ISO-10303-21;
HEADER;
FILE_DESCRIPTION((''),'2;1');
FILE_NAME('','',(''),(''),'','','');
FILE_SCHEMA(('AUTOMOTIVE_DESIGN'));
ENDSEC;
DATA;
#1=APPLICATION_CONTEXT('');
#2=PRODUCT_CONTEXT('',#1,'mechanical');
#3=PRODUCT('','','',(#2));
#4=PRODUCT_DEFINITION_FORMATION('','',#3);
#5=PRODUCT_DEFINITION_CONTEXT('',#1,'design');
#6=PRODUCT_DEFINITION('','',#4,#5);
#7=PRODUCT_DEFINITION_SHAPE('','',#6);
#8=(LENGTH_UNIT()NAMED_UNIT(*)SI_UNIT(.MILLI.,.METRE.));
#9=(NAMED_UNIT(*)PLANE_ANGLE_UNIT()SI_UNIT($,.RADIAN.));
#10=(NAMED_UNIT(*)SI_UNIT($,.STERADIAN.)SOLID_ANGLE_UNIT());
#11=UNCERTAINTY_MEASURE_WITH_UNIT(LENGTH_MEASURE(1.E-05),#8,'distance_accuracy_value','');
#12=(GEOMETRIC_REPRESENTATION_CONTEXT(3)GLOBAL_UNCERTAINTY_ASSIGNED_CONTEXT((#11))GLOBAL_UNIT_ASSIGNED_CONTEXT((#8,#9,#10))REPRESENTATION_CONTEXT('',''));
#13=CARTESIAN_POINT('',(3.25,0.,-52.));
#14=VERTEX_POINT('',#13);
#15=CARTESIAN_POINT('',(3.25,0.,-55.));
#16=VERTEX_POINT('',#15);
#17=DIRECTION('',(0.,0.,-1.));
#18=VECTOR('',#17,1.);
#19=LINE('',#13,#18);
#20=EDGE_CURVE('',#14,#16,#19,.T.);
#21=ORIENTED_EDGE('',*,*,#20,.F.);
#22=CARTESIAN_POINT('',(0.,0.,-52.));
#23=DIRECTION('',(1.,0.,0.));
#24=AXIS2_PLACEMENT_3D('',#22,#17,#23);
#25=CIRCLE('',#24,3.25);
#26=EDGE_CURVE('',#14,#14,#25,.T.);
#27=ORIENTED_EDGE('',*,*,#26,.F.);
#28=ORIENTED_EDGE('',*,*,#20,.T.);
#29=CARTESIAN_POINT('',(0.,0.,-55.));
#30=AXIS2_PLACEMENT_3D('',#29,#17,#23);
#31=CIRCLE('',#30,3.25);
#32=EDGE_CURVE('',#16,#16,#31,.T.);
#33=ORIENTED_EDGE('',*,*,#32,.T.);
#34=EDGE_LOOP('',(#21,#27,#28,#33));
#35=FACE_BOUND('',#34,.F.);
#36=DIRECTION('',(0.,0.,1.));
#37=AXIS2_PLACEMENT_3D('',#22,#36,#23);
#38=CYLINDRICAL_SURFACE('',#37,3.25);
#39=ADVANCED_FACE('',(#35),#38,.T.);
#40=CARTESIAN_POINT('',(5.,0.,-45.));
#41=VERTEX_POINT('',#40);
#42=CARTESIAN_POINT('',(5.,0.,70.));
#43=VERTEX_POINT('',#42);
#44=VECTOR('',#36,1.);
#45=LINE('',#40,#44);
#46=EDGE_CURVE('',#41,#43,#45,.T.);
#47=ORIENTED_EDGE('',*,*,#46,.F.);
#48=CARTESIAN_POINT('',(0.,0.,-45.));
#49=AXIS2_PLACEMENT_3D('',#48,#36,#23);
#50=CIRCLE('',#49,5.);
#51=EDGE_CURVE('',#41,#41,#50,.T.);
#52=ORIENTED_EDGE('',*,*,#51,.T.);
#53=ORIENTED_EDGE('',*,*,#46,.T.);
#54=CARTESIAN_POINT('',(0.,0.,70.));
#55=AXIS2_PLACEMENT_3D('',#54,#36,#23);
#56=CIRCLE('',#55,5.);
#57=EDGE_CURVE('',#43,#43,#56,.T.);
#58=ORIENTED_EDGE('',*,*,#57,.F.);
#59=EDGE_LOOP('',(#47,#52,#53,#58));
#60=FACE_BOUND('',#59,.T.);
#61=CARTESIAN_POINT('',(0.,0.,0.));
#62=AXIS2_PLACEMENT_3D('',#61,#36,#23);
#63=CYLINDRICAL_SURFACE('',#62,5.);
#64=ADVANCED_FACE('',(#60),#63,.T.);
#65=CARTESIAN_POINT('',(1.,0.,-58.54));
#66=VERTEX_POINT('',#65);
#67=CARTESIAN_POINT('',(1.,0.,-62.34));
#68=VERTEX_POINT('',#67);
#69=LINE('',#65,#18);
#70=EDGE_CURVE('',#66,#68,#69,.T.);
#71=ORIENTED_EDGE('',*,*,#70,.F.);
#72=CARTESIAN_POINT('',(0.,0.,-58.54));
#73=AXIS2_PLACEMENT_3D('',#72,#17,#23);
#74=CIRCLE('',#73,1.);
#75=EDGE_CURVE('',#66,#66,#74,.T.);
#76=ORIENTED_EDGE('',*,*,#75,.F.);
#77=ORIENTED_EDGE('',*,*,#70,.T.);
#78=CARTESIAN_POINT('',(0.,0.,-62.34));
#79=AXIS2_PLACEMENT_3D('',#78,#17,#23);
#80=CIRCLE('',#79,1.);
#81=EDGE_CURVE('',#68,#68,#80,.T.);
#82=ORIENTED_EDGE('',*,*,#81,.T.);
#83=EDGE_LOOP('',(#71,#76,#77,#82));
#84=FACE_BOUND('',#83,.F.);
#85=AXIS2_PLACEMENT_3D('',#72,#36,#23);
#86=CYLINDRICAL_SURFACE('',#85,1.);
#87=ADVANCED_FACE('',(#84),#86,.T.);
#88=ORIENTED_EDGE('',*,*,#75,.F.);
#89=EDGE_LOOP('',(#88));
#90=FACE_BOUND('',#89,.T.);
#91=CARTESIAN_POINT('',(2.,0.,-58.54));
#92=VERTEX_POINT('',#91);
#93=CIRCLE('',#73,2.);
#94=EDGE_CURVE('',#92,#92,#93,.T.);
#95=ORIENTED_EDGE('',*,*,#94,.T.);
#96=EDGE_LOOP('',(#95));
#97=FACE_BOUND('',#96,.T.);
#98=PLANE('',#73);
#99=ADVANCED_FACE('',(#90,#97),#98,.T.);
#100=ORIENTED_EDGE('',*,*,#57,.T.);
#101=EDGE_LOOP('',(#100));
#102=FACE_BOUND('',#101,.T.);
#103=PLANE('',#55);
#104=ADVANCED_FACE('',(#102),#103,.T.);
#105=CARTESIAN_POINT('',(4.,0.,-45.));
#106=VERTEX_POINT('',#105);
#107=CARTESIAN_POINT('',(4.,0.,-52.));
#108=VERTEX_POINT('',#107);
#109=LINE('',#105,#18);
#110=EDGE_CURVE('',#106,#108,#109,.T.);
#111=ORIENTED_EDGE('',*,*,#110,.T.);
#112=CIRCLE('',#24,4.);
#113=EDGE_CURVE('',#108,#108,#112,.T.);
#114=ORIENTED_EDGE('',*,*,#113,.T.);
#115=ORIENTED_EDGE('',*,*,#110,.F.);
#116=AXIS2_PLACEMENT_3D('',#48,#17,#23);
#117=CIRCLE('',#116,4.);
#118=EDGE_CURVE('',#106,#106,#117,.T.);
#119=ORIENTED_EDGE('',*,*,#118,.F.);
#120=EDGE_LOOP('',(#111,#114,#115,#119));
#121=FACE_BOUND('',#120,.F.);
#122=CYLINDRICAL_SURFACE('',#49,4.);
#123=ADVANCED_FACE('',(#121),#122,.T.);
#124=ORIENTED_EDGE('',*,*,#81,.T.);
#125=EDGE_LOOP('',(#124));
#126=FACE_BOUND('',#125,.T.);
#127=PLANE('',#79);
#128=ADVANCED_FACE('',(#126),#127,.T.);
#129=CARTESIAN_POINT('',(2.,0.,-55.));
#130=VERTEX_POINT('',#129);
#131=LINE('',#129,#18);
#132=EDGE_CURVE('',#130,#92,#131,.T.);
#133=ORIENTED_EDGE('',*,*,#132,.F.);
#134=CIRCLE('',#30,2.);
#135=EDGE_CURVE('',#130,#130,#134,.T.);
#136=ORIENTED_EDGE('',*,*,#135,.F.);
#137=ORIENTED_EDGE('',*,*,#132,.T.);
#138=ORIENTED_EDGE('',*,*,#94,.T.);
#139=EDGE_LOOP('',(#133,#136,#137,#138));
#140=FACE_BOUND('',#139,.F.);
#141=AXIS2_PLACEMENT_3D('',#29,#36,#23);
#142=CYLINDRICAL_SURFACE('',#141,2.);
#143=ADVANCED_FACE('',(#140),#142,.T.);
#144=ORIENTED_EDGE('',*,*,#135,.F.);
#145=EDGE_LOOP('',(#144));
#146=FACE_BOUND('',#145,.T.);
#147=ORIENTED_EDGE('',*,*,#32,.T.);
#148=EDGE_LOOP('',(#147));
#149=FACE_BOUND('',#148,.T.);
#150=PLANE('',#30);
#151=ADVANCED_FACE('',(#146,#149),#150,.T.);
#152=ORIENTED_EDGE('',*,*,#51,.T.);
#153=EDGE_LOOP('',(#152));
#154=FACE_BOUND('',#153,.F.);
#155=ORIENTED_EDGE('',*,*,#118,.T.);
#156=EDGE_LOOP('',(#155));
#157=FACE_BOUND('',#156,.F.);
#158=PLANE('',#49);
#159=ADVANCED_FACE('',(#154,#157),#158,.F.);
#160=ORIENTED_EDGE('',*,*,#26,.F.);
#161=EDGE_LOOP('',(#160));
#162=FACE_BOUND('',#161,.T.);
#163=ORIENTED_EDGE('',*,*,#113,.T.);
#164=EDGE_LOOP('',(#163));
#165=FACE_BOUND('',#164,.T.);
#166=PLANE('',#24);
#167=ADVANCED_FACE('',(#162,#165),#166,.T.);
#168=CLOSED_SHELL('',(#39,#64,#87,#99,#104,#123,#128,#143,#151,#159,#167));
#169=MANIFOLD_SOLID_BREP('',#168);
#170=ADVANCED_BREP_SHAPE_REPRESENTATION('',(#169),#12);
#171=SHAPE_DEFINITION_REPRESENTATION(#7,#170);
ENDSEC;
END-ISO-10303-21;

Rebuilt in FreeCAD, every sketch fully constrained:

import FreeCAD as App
import Part
import Sketcher

V = App.Vector
Q = App.Units.Quantity

doc = App.newDocument("Part")
body = doc.addObject("PartDesign::Body", "Body")

sketch1 = doc.addObject("Sketcher::SketchObject", "Sketch")
body.addObject(sketch1)
sketch1.AttachmentSupport = (doc.XY_Plane, [""])
sketch1.MapMode = "FlatFace"
sketch1.addGeometry(Part.Circle(V(0, 0, 0), V(0, 0, 1), 5), False)
sketch1.addConstraint([
    Sketcher.Constraint("Coincident", 0, 3, -1, 1),
    Sketcher.Constraint("Diameter", 0, Q("10 mm")),
])
pad1 = doc.addObject("PartDesign::Pad", "Pad")
body.addObject(pad1)
pad1.Profile = sketch1
pad1.Type = "TwoLengths"
pad1.Length = 70
pad1.Length2 = 45

sketch2 = doc.addObject("Sketcher::SketchObject", "Sketch001")
body.addObject(sketch2)
sketch2.AttachmentSupport = (doc.XY_Plane, [""])
sketch2.MapMode = "FlatFace"
sketch2.AttachmentOffset = App.Placement(V(0, 0, -45), App.Rotation())
sketch2.addGeometry(Part.Circle(V(0, 0, 0), V(0, 0, 1), 4), False)
sketch2.addConstraint([
    Sketcher.Constraint("Coincident", 0, 3, -1, 1),
    Sketcher.Constraint("Diameter", 0, Q("8 mm")),
])
pad2 = doc.addObject("PartDesign::Pad", "Pad001")
body.addObject(pad2)
pad2.Profile = sketch2
pad2.Length = 7
pad2.Reversed = True

sketch3 = doc.addObject("Sketcher::SketchObject", "Sketch002")
body.addObject(sketch3)
sketch3.AttachmentSupport = (doc.XY_Plane, [""])
sketch3.MapMode = "FlatFace"
sketch3.AttachmentOffset = App.Placement(V(0, 0, -52), App.Rotation())
sketch3.addGeometry(Part.Circle(V(0, 0, 0), V(0, 0, 1), 3.25), False)
sketch3.addConstraint([
    Sketcher.Constraint("Coincident", 0, 3, -1, 1),
    Sketcher.Constraint("Diameter", 0, Q("6.5 mm")),
])
pad3 = doc.addObject("PartDesign::Pad", "Pad002")
body.addObject(pad3)
pad3.Profile = sketch3
pad3.Length = 3
pad3.Reversed = True

sketch4 = doc.addObject("Sketcher::SketchObject", "Sketch003")
body.addObject(sketch4)
sketch4.AttachmentSupport = (doc.XY_Plane, [""])
sketch4.MapMode = "FlatFace"
sketch4.AttachmentOffset = App.Placement(V(0, 0, -55), App.Rotation())
sketch4.addGeometry(Part.Circle(V(0, 0, 0), V(0, 0, 1), 2), False)
sketch4.addConstraint([
    Sketcher.Constraint("Coincident", 0, 3, -1, 1),
    Sketcher.Constraint("Diameter", 0, Q("4 mm")),
])
pad4 = doc.addObject("PartDesign::Pad", "Pad003")
body.addObject(pad4)
pad4.Profile = sketch4
pad4.Length = 3.54
pad4.Reversed = True

sketch5 = doc.addObject("Sketcher::SketchObject", "Sketch004")
body.addObject(sketch5)
sketch5.AttachmentSupport = (doc.XY_Plane, [""])
sketch5.MapMode = "FlatFace"
sketch5.AttachmentOffset = App.Placement(V(0, 0, -58.54), App.Rotation())
sketch5.addGeometry(Part.Circle(V(0, 0, 0), V(0, 0, 1), 1), False)
sketch5.addConstraint([
    Sketcher.Constraint("Coincident", 0, 3, -1, 1),
    Sketcher.Constraint("Diameter", 0, Q("2 mm")),
])
pad5 = doc.addObject("PartDesign::Pad", "Pad004")
body.addObject(pad5)
pad5.Profile = sketch5
pad5.Length = 3.8
pad5.Reversed = True

doc.recompute()
